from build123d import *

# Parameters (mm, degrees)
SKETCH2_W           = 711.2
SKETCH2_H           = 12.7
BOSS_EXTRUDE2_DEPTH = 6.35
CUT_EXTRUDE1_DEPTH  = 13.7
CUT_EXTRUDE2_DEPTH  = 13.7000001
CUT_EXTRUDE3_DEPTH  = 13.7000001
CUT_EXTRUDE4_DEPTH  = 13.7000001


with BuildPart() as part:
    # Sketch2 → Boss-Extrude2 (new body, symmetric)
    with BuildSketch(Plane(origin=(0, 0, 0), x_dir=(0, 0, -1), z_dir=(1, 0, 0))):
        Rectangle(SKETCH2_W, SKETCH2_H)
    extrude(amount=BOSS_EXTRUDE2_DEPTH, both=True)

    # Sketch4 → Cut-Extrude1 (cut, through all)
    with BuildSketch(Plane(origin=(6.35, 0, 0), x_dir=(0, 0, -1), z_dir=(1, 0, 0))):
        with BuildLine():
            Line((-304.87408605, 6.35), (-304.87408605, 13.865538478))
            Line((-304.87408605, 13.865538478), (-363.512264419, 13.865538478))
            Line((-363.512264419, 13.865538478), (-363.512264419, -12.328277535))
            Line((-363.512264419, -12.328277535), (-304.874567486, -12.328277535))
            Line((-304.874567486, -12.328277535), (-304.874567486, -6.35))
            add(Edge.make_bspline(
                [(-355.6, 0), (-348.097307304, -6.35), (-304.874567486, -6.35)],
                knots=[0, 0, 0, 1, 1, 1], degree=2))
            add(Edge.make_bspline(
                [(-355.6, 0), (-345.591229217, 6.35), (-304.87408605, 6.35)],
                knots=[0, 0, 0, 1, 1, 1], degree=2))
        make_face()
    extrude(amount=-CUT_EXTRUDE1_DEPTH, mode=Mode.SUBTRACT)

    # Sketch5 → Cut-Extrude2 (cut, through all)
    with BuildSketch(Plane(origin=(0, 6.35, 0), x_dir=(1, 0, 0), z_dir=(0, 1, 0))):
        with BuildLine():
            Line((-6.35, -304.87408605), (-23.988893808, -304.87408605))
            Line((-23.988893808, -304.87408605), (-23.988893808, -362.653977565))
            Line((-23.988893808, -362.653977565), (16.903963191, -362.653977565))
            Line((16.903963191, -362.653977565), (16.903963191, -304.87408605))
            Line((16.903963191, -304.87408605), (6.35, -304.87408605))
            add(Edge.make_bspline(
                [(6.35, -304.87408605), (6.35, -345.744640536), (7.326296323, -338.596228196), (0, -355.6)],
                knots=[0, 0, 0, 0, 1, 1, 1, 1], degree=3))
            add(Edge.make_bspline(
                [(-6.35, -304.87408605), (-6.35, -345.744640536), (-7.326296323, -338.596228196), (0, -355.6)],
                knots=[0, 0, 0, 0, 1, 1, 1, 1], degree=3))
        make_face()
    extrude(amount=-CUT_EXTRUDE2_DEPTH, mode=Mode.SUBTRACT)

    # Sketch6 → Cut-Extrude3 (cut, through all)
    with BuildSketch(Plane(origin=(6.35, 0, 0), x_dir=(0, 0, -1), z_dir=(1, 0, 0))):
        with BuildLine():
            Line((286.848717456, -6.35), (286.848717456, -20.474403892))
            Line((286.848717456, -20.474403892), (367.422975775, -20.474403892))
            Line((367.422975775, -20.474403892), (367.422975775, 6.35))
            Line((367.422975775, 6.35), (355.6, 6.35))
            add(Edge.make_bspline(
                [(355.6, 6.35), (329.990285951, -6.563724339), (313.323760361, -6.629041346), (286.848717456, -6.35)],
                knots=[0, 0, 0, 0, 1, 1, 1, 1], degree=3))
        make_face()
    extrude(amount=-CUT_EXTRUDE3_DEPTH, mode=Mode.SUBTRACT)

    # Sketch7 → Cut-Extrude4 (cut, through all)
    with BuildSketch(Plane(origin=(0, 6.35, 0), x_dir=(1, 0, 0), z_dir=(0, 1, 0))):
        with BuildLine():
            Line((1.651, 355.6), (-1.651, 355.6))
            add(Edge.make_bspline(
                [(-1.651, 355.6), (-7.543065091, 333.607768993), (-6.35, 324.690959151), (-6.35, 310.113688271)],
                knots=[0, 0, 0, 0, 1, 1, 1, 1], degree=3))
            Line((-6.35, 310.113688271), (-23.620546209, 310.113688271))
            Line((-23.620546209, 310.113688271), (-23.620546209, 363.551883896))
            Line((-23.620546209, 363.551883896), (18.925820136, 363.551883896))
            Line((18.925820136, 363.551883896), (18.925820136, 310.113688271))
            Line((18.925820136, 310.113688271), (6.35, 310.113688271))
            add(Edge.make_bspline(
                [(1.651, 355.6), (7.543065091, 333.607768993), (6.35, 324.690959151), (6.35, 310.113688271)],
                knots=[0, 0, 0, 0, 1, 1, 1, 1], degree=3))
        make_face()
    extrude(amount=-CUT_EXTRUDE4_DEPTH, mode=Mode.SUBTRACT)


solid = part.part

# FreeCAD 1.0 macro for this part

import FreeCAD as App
import Part
import Sketcher

V = App.Vector
Q = App.Units.Quantity


def add_polygon(sketch, points):
    """Adds a closed chain of lines whose ends are joined by coincident constraints."""
    first, n = sketch.GeometryCount, len(points)
    for a, b in zip(points, points[1:] + points[:1]):
        sketch.addGeometry(Part.LineSegment(App.Vector(*a, 0), App.Vector(*b, 0)), False)
    for i in range(n):
        sketch.addConstraint(Sketcher.Constraint("Coincident", first + i, 2, first + (i + 1) % n, 1))

doc = App.newDocument("Part")
params = doc.addObject("Spreadsheet::Sheet", "Params")
for row, (alias, value) in enumerate([
    ("sketch1_height", "28 in"),
    ("sketch1_width", "0.5 in"),
    ("pad1_length", "0.5 in"),
], start=1):
    params.set(f"A{row}", alias)
    params.set(f"B{row}", "=" + value)
    params.setAlias(f"B{row}", alias)

body = doc.addObject("PartDesign::Body", "Body")

sketch1 = body.newObject("Sketcher::SketchObject", "Sketch")
sketch1.AttachmentSupport = (doc.getObject("YZ_Plane"), [""])
sketch1.MapMode = "FlatFace"
add_polygon(sketch1, [(6.35, 355.6), (-6.35, 355.6), (-6.35, -355.6), (6.35, -355.6)])
sketch1.addConstraint([
    Sketcher.Constraint("Horizontal", 0),
    Sketcher.Constraint("Vertical", 1),
    Sketcher.Constraint("Horizontal", 2),
    Sketcher.Constraint("Vertical", 3),
    Sketcher.Constraint("Symmetric", 0, 2, 2, 2, -1, 1),
    Sketcher.Constraint("DistanceY", 1, 2, 1, 1, Q("28 in")),
    Sketcher.Constraint("DistanceX", 0, 2, 0, 1, Q("0.5 in")),
])
sketch1.setExpression("Constraints[9]", "Params.sketch1_height")
sketch1.setExpression("Constraints[10]", "Params.sketch1_width")
pad1 = body.newObject("PartDesign::Pad", "Pad")
pad1.Profile = sketch1
pad1.setExpression("Length", "Params.pad1_length")
pad1.Midplane = True

sketch2 = body.newObject("Sketcher::SketchObject", "Sketch001")
sketch2.AttachmentSupport = (doc.getObject("YZ_Plane"), [""])
sketch2.MapMode = "FlatFace"
sketch2.AttachmentOffset = App.Placement(V(0, 0, 0.25 * 25.4), App.Rotation())
sketch2.addGeometry([
    Part.LineSegment(V(6.35, 304.874086, 0), V(13.865538, 304.874086, 0)),
    Part.LineSegment(V(13.865538, 304.874086, 0), V(13.865538, 363.512264, 0)),
    Part.LineSegment(V(13.865538, 363.512264, 0), V(-12.328278, 363.512264, 0)),
    Part.LineSegment(V(-12.328278, 363.512264, 0), V(-12.328278, 304.874567, 0)),
    Part.LineSegment(V(-12.328278, 304.874567, 0), V(-6.35, 304.874567, 0)),
    Part.BSplineCurve([V(0, 355.6, 0), V(-6.35, 348.097307, 0), V(-6.35, 304.874567, 0)], [3, 3], [0, 1], False, 2, [1, 1, 1], False),
    Part.BSplineCurve([V(0, 355.6, 0), V(6.35, 345.591229, 0), V(6.35, 304.874086, 0)], [3, 3], [0, 1], False, 2, [1, 1, 1], False),
], False)
sketch2.addConstraint([
    Sketcher.Constraint("Block", 5),
    Sketcher.Constraint("Block", 6),
    Sketcher.Constraint("Coincident", 0, 2, 1, 1),
    Sketcher.Constraint("Coincident", 1, 2, 2, 1),
    Sketcher.Constraint("Coincident", 2, 2, 3, 1),
    Sketcher.Constraint("Coincident", 3, 2, 4, 1),
    Sketcher.Constraint("Coincident", 4, 2, 5, 2),
    Sketcher.Constraint("Coincident", 6, 2, 0, 1),
    Sketcher.Constraint("Horizontal", 0),
    Sketcher.Constraint("Vertical", 1),
    Sketcher.Constraint("Horizontal", 2),
    Sketcher.Constraint("Vertical", 3),
    Sketcher.Constraint("Horizontal", 4),
    Sketcher.Constraint("DistanceX", 0, 1, 0, 2, Q("7.515538 mm")),
    Sketcher.Constraint("DistanceY", 1, 1, 1, 2, Q("58.638178 mm")),
    Sketcher.Constraint("DistanceX", 2, 2, 2, 1, Q("26.193816 mm")),
])
pocket1 = body.newObject("PartDesign::Pocket", "Pocket")
pocket1.Profile = sketch2
pocket1.Type = "ThroughAll"

sketch3 = body.newObject("Sketcher::SketchObject", "Sketch002")
sketch3.AttachmentSupport = (doc.getObject("XZ_Plane"), [""])
sketch3.MapMode = "FlatFace"
sketch3.AttachmentOffset = App.Placement(V(0, 0, -0.25 * 25.4), App.Rotation())
sketch3.addGeometry([
    Part.LineSegment(V(-6.35, 304.874086, 0), V(-23.988894, 304.874086, 0)),
    Part.LineSegment(V(-23.988894, 304.874086, 0), V(-23.988894, 362.653978, 0)),
    Part.LineSegment(V(-23.988894, 362.653978, 0), V(16.903963, 362.653978, 0)),
    Part.LineSegment(V(16.903963, 362.653978, 0), V(16.903963, 304.874086, 0)),
    Part.LineSegment(V(16.903963, 304.874086, 0), V(6.35, 304.874086, 0)),
    Part.BSplineCurve([V(6.35, 304.874086, 0), V(6.35, 345.744641, 0), V(7.326296, 338.596228, 0), V(0, 355.6, 0)], [4, 4], [0, 1], False, 3, [1, 1, 1, 1], False),
    Part.BSplineCurve([V(-6.35, 304.874086, 0), V(-6.35, 345.744641, 0), V(-7.326296, 338.596228, 0), V(0, 355.6, 0)], [4, 4], [0, 1], False, 3, [1, 1, 1, 1], False),
], False)
sketch3.addConstraint([
    Sketcher.Constraint("Block", 5),
    Sketcher.Constraint("Block", 6),
    Sketcher.Constraint("Coincident", 0, 2, 1, 1),
    Sketcher.Constraint("Coincident", 1, 2, 2, 1),
    Sketcher.Constraint("Coincident", 2, 2, 3, 1),
    Sketcher.Constraint("Coincident", 3, 2, 4, 1),
    Sketcher.Constraint("Coincident", 4, 2, 5, 1),
    Sketcher.Constraint("Coincident", 6, 1, 0, 1),
    Sketcher.Constraint("Horizontal", 0),
    Sketcher.Constraint("Vertical", 1),
    Sketcher.Constraint("Horizontal", 2),
    Sketcher.Constraint("Vertical", 3),
    Sketcher.Constraint("Horizontal", 4),
    Sketcher.Constraint("DistanceY", 1, 1, 1, 2, Q("57.779892 mm")),
    Sketcher.Constraint("DistanceX", 0, 2, 0, 1, Q("17.638894 mm")),
    Sketcher.Constraint("DistanceX", 2, 1, 2, 2, Q("40.892857 mm")),
])
pocket2 = body.newObject("PartDesign::Pocket", "Pocket001")
pocket2.Profile = sketch3
pocket2.Type = "ThroughAll"
pocket2.Reversed = True

sketch4 = body.newObject("Sketcher::SketchObject", "Sketch003")
sketch4.AttachmentSupport = (doc.getObject("YZ_Plane"), [""])
sketch4.MapMode = "FlatFace"
sketch4.AttachmentOffset = App.Placement(V(0, 0, 0.25 * 25.4), App.Rotation())
sketch4.addGeometry([
    Part.LineSegment(V(-6.35, -286.848717, 0), V(-20.474404, -286.848717, 0)),
    Part.LineSegment(V(-20.474404, -286.848717, 0), V(-20.474404, -367.422976, 0)),
    Part.LineSegment(V(-20.474404, -367.422976, 0), V(6.35, -367.422976, 0)),
    Part.LineSegment(V(6.35, -367.422976, 0), V(6.35, -355.6, 0)),
    Part.BSplineCurve([V(6.35, -355.6, 0), V(-6.563724, -329.990286, 0), V(-6.629041, -313.32376, 0), V(-6.35, -286.848717, 0)], [4, 4], [0, 1], False, 3, [1, 1, 1, 1], False),
], False)
sketch4.addConstraint([
    Sketcher.Constraint("Block", 4),
    Sketcher.Constraint("Coincident", 0, 2, 1, 1),
    Sketcher.Constraint("Coincident", 1, 2, 2, 1),
    Sketcher.Constraint("Coincident", 2, 2, 3, 1),
    Sketcher.Constraint("Coincident", 3, 2, 4, 1),
    Sketcher.Constraint("Coincident", 4, 2, 0, 1),
    Sketcher.Constraint("Horizontal", 0),
    Sketcher.Constraint("Vertical", 1),
    Sketcher.Constraint("Horizontal", 2),
    Sketcher.Constraint("Vertical", 3),
    Sketcher.Constraint("DistanceY", 1, 2, 1, 1, Q("80.574258 mm")),
    Sketcher.Constraint("DistanceX", 0, 2, 0, 1, Q("14.124404 mm")),
])
pocket3 = body.newObject("PartDesign::Pocket", "Pocket002")
pocket3.Profile = sketch4
pocket3.Type = "ThroughAll"

sketch5 = body.newObject("Sketcher::SketchObject", "Sketch004")
sketch5.AttachmentSupport = (doc.getObject("XZ_Plane"), [""])
sketch5.MapMode = "FlatFace"
sketch5.AttachmentOffset = App.Placement(V(0, 0, -0.25 * 25.4), App.Rotation())
sketch5.addGeometry([
    Part.LineSegment(V(-1.651, -355.6, 0), V(1.651, -355.6, 0)),
    Part.BSplineCurve([V(1.651, -355.6, 0), V(7.543065, -333.607769, 0), V(6.35, -324.690959, 0), V(6.35, -310.113688, 0)], [4, 4], [0, 1], False, 3, [1, 1, 1, 1], False),
    Part.LineSegment(V(6.35, -310.113688, 0), V(18.92582, -310.113688, 0)),
    Part.LineSegment(V(18.92582, -310.113688, 0), V(18.92582, -363.551884, 0)),
    Part.LineSegment(V(18.92582, -363.551884, 0), V(-23.620546, -363.551884, 0)),
    Part.LineSegment(V(-23.620546, -363.551884, 0), V(-23.620546, -310.113688, 0)),
    Part.LineSegment(V(-23.620546, -310.113688, 0), V(-6.35, -310.113688, 0)),
    Part.BSplineCurve([V(-1.651, -355.6, 0), V(-7.543065, -333.607769, 0), V(-6.35, -324.690959, 0), V(-6.35, -310.113688, 0)], [4, 4], [0, 1], False, 3, [1, 1, 1, 1], False),
], False)
sketch5.addConstraint([
    Sketcher.Constraint("Block", 1),
    Sketcher.Constraint("Block", 7),
    Sketcher.Constraint("Coincident", 0, 2, 1, 1),
    Sketcher.Constraint("Coincident", 1, 2, 2, 1),
    Sketcher.Constraint("Coincident", 2, 2, 3, 1),
    Sketcher.Constraint("Coincident", 3, 2, 4, 1),
    Sketcher.Constraint("Coincident", 4, 2, 5, 1),
    Sketcher.Constraint("Coincident", 5, 2, 6, 1),
    Sketcher.Constraint("Coincident", 6, 2, 7, 2),
    Sketcher.Constraint("Coincident", 7, 1, 0, 1),
    Sketcher.Constraint("Horizontal", 2),
    Sketcher.Constraint("Vertical", 3),
    Sketcher.Constraint("Horizontal", 4),
    Sketcher.Constraint("Vertical", 5),
    Sketcher.Constraint("Horizontal", 6),
    Sketcher.Constraint("DistanceX", 2, 1, 2, 2, Q("12.57582 mm")),
    Sketcher.Constraint("DistanceX", 4, 2, 4, 1, Q("42.546366 mm")),
    Sketcher.Constraint("DistanceY", 3, 2, 3, 1, Q("53.438196 mm")),
])
pocket4 = body.newObject("PartDesign::Pocket", "Pocket003")
pocket4.Profile = sketch5
pocket4.Type = "ThroughAll"
pocket4.Reversed = True

doc.recompute()
